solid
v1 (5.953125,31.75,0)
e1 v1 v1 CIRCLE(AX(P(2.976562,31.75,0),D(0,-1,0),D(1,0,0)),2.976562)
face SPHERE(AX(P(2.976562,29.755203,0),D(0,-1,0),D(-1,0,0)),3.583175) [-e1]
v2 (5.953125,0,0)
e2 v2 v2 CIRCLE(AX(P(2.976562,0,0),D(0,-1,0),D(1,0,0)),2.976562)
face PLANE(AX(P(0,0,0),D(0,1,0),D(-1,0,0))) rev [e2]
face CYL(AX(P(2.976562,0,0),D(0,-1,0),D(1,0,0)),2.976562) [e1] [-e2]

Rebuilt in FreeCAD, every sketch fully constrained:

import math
import FreeCAD as App
import Part
import Sketcher

V = App.Vector
Q = App.Units.Quantity

doc = App.newDocument("Part")
params = doc.addObject("Spreadsheet::Sheet", "Params")
for row, (alias, value) in enumerate([
    ("sketch1_height", "1.25 in"),
    ("revolution_angle", "360 deg"),
], start=1):
    params.set(f"A{row}", alias)
    params.set(f"B{row}", "=" + value)
    params.setAlias(f"B{row}", alias)

body = doc.addObject("PartDesign::Body", "Body")

# Sketch on XY plane
sketch1 = body.newObject("Sketcher::SketchObject", "Sketch")
sketch1.AttachmentSupport = (doc.getObject("XY_Plane"), [""])
sketch1.MapMode = "FlatFace"
sketch1.addGeometry([
    Part.LineSegment(V(0, 0, 0), V(3, 0, 0)),
    Part.LineSegment(V(3, 0, 0), V(3, 33.3, 0)),
    Part.ArcOfCircle(Part.Circle(V(3, 29.8, 0), V(0, 0, 1), 3.6), math.radians(90), math.radians(146)),
    Part.LineSegment(V(0, 31.8, 0), V(0, 0, 0)),
], False)
sketch1.addGeometry(Part.LineSegment(V(3, 0, 0), V(3, 33.3, 0)), True)  # axis
sketch1.addConstraint([
    Sketcher.Constraint("Coincident", 0, 2, 1, 1),
    Sketcher.Constraint("Coincident", 1, 2, 2, 1),
    Sketcher.Constraint("Coincident", 2, 2, 3, 1),
    Sketcher.Constraint("Coincident", 3, 2, 0, 1),
    Sketcher.Constraint("Horizontal", 0),
    Sketcher.Constraint("Vertical", 1),
    Sketcher.Constraint("Vertical", 3),
    Sketcher.Constraint("Vertical", 4),
    Sketcher.Constraint("Coincident", 3, 2, -1, 1),
    Sketcher.Constraint("Coincident", 4, 1, 0, 2),
    Sketcher.Constraint("Vertical", 2, 3, 0, 2),
    Sketcher.Constraint("Equal", 1, 4),
    Sketcher.Constraint("DistanceY", 3, 2, 3, 1, Q("1.25 in")),
    Sketcher.Constraint("Radius", 2, Q("3.583175 mm")),
    Sketcher.Constraint("DistanceX", 0, 1, 0, 2, Q("2.976562 mm")),
])
sketch1.setExpression("Constraints[12]", "Params.sketch1_height")
revolution = body.newObject("PartDesign::Revolution", "Revolution")
revolution.Profile = sketch1
revolution.ReferenceAxis = (sketch1, ["Axis0"])
revolution.setExpression("Angle", "Params.revolution_angle")

doc.recompute()
